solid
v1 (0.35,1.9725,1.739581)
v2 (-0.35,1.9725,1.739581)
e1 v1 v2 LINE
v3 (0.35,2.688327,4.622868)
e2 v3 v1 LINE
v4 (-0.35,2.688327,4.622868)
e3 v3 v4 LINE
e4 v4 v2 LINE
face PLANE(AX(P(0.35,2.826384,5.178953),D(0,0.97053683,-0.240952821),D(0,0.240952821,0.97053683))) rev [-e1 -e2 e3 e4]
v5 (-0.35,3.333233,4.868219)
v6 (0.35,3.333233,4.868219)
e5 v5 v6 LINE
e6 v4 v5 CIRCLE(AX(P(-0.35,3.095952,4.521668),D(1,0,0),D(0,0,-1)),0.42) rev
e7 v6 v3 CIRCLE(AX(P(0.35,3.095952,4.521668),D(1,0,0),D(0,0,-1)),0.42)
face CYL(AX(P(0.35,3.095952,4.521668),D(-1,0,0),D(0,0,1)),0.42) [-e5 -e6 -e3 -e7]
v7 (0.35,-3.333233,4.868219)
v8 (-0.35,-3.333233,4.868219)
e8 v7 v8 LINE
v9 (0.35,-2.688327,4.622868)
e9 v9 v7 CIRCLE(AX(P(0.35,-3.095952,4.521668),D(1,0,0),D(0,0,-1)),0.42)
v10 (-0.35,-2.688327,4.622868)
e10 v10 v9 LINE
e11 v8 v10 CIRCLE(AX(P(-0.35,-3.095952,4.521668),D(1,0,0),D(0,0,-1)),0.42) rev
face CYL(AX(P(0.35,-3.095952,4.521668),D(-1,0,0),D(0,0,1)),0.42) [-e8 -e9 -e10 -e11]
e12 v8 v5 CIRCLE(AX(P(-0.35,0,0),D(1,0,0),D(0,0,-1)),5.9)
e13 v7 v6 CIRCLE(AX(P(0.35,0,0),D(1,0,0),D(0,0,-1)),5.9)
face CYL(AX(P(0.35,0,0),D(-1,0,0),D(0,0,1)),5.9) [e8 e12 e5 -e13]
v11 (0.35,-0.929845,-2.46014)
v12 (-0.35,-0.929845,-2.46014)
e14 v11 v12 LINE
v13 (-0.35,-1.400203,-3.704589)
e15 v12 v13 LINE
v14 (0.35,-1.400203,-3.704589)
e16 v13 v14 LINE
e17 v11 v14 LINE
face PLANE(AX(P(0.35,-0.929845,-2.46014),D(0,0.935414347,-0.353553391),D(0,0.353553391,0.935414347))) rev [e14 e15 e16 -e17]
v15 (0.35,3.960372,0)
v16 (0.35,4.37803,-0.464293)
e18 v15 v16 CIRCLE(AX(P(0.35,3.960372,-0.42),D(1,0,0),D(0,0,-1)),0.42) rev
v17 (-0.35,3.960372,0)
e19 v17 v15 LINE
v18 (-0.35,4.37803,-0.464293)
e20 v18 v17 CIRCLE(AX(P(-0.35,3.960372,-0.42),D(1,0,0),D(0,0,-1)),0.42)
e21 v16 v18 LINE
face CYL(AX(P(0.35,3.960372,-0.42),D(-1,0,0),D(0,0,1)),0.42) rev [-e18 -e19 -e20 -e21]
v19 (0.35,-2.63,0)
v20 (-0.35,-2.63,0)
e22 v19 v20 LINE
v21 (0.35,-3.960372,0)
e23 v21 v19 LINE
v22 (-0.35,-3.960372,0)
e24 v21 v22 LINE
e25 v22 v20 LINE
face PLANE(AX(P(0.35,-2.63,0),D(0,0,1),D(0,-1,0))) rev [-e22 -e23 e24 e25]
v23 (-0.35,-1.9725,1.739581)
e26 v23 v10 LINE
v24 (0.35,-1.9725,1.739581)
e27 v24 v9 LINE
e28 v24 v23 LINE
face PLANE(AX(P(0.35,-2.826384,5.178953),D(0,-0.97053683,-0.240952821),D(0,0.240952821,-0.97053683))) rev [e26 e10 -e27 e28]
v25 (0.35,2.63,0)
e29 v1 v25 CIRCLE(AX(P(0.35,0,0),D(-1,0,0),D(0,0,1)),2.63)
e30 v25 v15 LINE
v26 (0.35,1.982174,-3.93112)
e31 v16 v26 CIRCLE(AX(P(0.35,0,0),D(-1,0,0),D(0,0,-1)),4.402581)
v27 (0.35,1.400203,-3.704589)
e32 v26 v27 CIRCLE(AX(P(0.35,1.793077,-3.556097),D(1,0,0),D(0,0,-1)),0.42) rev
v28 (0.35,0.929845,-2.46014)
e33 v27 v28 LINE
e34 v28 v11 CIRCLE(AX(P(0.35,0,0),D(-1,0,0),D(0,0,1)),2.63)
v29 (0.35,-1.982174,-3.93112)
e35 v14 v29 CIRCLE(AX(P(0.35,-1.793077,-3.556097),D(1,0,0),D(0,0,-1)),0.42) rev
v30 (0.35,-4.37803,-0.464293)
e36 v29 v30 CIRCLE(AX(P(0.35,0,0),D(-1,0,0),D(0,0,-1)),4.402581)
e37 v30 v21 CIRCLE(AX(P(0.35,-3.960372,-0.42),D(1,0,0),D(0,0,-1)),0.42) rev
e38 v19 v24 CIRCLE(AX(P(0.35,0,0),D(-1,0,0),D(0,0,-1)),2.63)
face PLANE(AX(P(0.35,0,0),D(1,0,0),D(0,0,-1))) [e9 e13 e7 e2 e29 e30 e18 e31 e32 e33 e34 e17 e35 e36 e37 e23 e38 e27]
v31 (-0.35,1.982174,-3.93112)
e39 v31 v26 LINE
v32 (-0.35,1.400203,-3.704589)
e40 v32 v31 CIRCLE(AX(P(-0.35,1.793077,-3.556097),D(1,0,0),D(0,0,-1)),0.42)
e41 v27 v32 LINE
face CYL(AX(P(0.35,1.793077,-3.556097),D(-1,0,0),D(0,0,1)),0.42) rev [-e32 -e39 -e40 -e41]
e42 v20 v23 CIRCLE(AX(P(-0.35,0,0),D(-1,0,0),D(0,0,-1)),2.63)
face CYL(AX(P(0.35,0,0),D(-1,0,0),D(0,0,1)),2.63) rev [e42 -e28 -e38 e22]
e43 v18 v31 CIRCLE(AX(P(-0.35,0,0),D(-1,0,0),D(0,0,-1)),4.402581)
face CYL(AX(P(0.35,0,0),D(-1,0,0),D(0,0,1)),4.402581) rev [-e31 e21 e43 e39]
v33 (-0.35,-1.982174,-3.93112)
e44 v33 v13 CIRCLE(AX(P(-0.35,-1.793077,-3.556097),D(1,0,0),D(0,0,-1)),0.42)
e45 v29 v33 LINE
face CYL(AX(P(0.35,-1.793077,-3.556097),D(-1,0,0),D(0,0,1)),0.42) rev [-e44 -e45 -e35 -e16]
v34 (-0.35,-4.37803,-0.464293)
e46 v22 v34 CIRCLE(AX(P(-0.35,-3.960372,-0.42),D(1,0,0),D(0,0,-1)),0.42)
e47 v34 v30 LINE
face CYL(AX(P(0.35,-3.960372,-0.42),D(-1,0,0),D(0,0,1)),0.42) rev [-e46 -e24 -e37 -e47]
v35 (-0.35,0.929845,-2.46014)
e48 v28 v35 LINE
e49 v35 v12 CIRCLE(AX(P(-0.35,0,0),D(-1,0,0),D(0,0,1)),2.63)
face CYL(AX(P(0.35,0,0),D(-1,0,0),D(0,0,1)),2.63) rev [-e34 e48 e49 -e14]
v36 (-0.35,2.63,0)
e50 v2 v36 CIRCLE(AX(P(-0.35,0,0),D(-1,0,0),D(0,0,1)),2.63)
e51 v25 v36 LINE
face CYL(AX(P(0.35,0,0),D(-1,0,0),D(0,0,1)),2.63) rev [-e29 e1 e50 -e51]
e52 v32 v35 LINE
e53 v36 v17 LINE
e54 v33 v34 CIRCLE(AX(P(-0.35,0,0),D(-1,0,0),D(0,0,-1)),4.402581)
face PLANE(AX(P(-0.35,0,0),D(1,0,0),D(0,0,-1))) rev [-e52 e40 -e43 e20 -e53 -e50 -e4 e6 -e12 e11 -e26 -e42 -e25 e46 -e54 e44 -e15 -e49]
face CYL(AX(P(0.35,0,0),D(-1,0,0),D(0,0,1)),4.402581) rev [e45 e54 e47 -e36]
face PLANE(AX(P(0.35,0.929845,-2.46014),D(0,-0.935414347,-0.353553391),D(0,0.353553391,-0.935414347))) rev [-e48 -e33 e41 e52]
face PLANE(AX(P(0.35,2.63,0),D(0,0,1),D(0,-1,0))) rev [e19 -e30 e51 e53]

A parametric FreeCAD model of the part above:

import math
import FreeCAD as App
import Part
import Sketcher
Q = App.Units.Quantity


def edges_at(feature, points):
    """Names of the edges that pass closest to the given points."""
    edges = feature.Shape.Edges
    near = lambda p: min(range(len(edges)), key=lambda i: edges[i].distToShape(Part.Vertex(*p))[0])
    return sorted({f"Edge{near(p) + 1}" for p in points})

doc = App.newDocument("Part")
body = doc.addObject("PartDesign::Body", "Body")

# Sketch on YZ plane
sketch1 = doc.addObject("Sketcher::SketchObject", "Sketch")
body.addObject(sketch1)
sketch1.AttachmentSupport = (doc.YZ_Plane, [""])
sketch1.MapMode = "FlatFace"
sketch1.addGeometry([
    Part.LineSegment(App.Vector(-1.9725, 1.739581, 0), App.Vector(-2.826384, 5.178953, 0)),  # 0
    Part.ArcOfCircle(Part.Circle(App.Vector(0, 0, 0), App.Vector(0, 0, 1), 5.9), math.radians(118.623257), math.radians(421.376743)),  # 1
    Part.LineSegment(App.Vector(2.826384, 5.178953, 0), App.Vector(1.9725, 1.739581, 0)),  # 2
    Part.ArcOfCircle(Part.Circle(App.Vector(0, 0, 0), App.Vector(0, 0, 1), 2.63), math.radians(0), math.radians(41.409622)),  # 3
    Part.LineSegment(App.Vector(2.63, 0, 0), App.Vector(4.402581, 0, 0)),  # 4
    Part.ArcOfCircle(Part.Circle(App.Vector(0, 0, 0), App.Vector(0, 0, 1), 4.402581), math.radians(-69.295189), math.radians(0)),  # 5
    Part.LineSegment(App.Vector(1.556547, -4.118237, 0), App.Vector(0.929845, -2.46014, 0)),  # 6
    Part.ArcOfCircle(Part.Circle(App.Vector(0, 0, 0), App.Vector(0, 0, 1), 2.63), math.radians(-110.704811), math.radians(-69.295189)),  # 7
    Part.LineSegment(App.Vector(-0.929845, -2.46014, 0), App.Vector(-1.556547, -4.118237, 0)),  # 8
    Part.ArcOfCircle(Part.Circle(App.Vector(0, 0, 0), App.Vector(0, 0, 1), 4.402581), math.radians(180), math.radians(249.295189)),  # 9
    Part.LineSegment(App.Vector(-4.402581, 0, 0), App.Vector(-2.63, 0, 0)),  # 10
    Part.ArcOfCircle(Part.Circle(App.Vector(0, 0, 0), App.Vector(0, 0, 1), 2.63), math.radians(138.590378), math.radians(180)),  # 11
], False)
sketch1.addConstraint([
    Sketcher.Constraint("Coincident", 0, 2, 1, 1),
    Sketcher.Constraint("Coincident", 1, 2, 2, 1),
    Sketcher.Constraint("Coincident", 2, 2, 3, 2),
    Sketcher.Constraint("Coincident", 3, 1, 4, 1),
    Sketcher.Constraint("Coincident", 4, 2, 5, 2),
    Sketcher.Constraint("Coincident", 5, 1, 6, 1),
    Sketcher.Constraint("Coincident", 6, 2, 7, 2),
    Sketcher.Constraint("Coincident", 7, 1, 8, 1),
    Sketcher.Constraint("Coincident", 8, 2, 9, 2),
    Sketcher.Constraint("Coincident", 9, 1, 10, 1),
    Sketcher.Constraint("Coincident", 10, 2, 11, 2),
    Sketcher.Constraint("Coincident", 11, 1, 0, 1),
    Sketcher.Constraint("Horizontal", 4),
    Sketcher.Constraint("Horizontal", 10),
    Sketcher.Constraint("Coincident", 1, 3, -1, 1),
    Sketcher.Constraint("Coincident", 3, 3, -1, 1),
    Sketcher.Constraint("Coincident", 5, 3, -1, 1),
    Sketcher.Constraint("Coincident", 7, 3, -1, 1),
    Sketcher.Constraint("Coincident", 9, 3, -1, 1),
    Sketcher.Constraint("Coincident", 11, 3, -1, 1),
    Sketcher.Constraint("Equal", 3, 7),
    Sketcher.Constraint("Equal", 5, 9),
    Sketcher.Constraint("Equal", 7, 11),
    Sketcher.Constraint("PointOnObject", 3, 1, -1),
    Sketcher.Constraint("PointOnObject", 9, 1, -1),
    Sketcher.Constraint("Horizontal", 0, 2, 1, 2),
    Sketcher.Constraint("Horizontal", 6, 2, 7, 1),
    Sketcher.Constraint("Horizontal", 5, 1, 8, 2),
    Sketcher.Constraint("Horizontal", 2, 2, 11, 1),
    Sketcher.Constraint("Radius", 1, Q("5.9 mm")),
    Sketcher.Constraint("Radius", 3, Q("2.63 mm")),
    Sketcher.Constraint("Radius", 5, Q("4.402581 mm")),
    Sketcher.Constraint("DistanceX", -1, 1, 2, 2, Q("1.9725 mm")),
    Sketcher.Constraint("DistanceX", 6, 2, 5, 1, Q("0.626702 mm")),
    Sketcher.Constraint("DistanceY", 6, 2, -1, 1, Q("2.46014 mm")),
    Sketcher.Constraint("DistanceX", 0, 2, 1, 2, Q("5.652769 mm")),
])
pad1 = doc.addObject("PartDesign::Pad", "Pad")
body.addObject(pad1)
pad1.Profile = sketch1
pad1.Length = 0.7
pad1.Midplane = True
doc.recompute()

fillet = doc.addObject("PartDesign::Fillet", "Fillet")
body.addObject(fillet)
fillet.Base = (pad1, edges_at(pad1, [
    (0, -2.826, 5.179),
    (0, -4.403, 0),
    (0, -1.557, -4.118),
    (0, 1.557, -4.118),
    (0, 4.403, 0),
    (0, 2.826, 5.179),
]))
fillet.Radius = 0.42

doc.recompute()
